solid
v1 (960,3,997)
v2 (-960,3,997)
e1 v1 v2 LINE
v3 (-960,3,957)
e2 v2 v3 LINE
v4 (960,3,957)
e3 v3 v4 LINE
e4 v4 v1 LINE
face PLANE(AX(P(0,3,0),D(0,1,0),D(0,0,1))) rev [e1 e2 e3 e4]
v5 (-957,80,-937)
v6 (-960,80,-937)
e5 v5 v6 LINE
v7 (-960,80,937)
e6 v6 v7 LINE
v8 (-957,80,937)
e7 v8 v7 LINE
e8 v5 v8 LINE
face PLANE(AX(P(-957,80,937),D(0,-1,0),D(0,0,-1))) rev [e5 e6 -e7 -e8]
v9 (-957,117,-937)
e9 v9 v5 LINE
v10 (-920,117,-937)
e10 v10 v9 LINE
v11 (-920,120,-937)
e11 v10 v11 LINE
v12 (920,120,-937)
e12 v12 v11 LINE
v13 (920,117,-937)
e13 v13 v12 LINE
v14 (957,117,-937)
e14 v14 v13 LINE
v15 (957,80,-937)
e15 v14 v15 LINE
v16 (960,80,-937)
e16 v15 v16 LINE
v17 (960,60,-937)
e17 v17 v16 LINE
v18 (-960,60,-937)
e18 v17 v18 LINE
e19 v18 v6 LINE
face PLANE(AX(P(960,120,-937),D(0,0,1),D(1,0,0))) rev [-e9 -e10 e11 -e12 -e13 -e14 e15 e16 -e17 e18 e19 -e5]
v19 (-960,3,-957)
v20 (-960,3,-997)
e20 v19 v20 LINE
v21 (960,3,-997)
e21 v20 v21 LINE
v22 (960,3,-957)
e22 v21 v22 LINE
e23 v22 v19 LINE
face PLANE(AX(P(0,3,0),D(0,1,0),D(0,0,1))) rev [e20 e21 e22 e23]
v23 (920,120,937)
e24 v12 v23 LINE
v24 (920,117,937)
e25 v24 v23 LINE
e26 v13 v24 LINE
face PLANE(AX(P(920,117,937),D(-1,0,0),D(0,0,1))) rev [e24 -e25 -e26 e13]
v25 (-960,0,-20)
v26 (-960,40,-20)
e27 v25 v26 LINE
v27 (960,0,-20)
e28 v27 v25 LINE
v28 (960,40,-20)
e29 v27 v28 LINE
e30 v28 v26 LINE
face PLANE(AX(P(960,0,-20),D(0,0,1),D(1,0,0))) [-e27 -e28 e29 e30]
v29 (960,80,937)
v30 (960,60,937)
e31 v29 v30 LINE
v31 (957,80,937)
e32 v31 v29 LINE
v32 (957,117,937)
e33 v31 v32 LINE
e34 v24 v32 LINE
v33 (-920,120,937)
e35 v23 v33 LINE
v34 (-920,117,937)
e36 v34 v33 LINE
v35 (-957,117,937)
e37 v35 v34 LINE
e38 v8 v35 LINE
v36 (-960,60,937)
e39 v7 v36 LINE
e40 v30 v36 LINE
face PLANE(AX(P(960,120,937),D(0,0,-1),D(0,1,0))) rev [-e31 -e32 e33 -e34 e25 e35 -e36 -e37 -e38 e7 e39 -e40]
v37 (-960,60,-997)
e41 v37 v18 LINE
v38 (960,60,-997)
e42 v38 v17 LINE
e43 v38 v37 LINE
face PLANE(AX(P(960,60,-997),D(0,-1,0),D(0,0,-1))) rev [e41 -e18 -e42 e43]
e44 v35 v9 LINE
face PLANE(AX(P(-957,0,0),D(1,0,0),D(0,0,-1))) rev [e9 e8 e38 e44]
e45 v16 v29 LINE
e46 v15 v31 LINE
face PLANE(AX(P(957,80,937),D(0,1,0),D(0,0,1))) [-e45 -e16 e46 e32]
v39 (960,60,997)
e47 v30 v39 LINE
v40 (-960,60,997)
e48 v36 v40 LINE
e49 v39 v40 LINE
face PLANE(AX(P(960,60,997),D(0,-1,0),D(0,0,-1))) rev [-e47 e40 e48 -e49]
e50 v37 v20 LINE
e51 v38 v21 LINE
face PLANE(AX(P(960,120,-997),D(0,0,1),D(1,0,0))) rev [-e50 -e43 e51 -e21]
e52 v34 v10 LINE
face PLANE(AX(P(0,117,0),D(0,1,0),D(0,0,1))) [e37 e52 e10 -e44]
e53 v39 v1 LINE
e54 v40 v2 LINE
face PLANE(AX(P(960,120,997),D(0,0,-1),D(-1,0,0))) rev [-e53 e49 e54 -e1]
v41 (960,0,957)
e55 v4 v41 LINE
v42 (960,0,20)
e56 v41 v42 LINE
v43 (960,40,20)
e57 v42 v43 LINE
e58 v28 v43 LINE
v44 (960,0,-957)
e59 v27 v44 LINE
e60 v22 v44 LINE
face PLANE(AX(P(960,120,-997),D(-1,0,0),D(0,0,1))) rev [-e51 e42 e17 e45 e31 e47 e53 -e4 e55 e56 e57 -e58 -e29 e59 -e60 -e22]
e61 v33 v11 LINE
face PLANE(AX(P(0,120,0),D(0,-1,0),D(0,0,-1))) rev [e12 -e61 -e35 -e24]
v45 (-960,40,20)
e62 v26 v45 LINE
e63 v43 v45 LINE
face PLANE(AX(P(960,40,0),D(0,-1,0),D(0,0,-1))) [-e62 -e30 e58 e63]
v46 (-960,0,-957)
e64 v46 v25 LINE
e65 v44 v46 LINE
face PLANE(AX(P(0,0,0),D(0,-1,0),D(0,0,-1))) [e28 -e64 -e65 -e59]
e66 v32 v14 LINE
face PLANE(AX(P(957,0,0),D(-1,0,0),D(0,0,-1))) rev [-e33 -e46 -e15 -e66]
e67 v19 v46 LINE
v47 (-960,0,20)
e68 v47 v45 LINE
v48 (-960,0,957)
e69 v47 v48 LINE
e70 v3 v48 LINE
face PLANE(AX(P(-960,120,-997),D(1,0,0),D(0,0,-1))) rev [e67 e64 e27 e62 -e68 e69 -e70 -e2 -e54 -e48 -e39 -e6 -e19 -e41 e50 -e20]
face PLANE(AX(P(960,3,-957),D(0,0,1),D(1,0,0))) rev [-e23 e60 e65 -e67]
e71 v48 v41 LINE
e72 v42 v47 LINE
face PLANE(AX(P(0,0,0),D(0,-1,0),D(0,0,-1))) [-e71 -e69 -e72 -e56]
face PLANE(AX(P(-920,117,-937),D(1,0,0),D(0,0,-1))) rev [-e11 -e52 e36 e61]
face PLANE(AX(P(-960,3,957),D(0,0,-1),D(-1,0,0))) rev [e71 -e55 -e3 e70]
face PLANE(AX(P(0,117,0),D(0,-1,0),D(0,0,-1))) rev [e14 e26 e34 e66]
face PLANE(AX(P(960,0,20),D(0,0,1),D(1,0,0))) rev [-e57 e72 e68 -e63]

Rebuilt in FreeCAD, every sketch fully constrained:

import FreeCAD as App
import Part
import Sketcher

doc = App.newDocument("Part")
body = doc.addObject("PartDesign::Body", "Body")

# Sketch on XZ plane
sketch1 = body.newObject("Sketcher::SketchObject", "Sketch")
sketch1.AttachmentSupport = (doc.getObject("XZ_Plane"), [""])
sketch1.MapMode = "FlatFace"
sketch1.addGeometry([
    Part.LineSegment(App.Vector(-960, -997, 0), App.Vector(-960, 997, 0)),
    Part.LineSegment(App.Vector(-960, 997, 0), App.Vector(960, 997, 0)),
    Part.LineSegment(App.Vector(960, 997, 0), App.Vector(960, -997, 0)),
    Part.LineSegment(App.Vector(960, -997, 0), App.Vector(-960, -997, 0)),
], False)
sketch1.addConstraint([
    Sketcher.Constraint("Coincident", 0, 2, 1, 1),
    Sketcher.Constraint("Coincident", 1, 2, 2, 1),
    Sketcher.Constraint("Coincident", 2, 2, 3, 1),
    Sketcher.Constraint("Coincident", 3, 2, 0, 1),
    Sketcher.Constraint("Vertical", 0),
    Sketcher.Constraint("Horizontal", 1),
    Sketcher.Constraint("Vertical", 2),
    Sketcher.Constraint("Horizontal", 3),
    Sketcher.Constraint("Symmetric", 0, 2, 2, 2, -1, 1),
    Sketcher.Constraint("DistanceX", 1, 1, 1, 2, 1920.0),
    Sketcher.Constraint("DistanceY", 0, 1, 0, 2, 1994.0),
])
pad1 = body.newObject("PartDesign::Pad", "Pad")
pad1.Profile = sketch1
pad1.Length = 120
pad1.Reversed = True

# Sketch on YZ plane
sketch2 = body.newObject("Sketcher::SketchObject", "Sketch001")
sketch2.AttachmentSupport = (doc.getObject("YZ_Plane"), [""])
sketch2.MapMode = "FlatFace"
sketch2.AttachmentOffset = App.Placement(App.Vector(0, 0, -960), App.Rotation())
sketch2.addGeometry([
    Part.LineSegment(App.Vector(120, -997, 0), App.Vector(60, -997, 0)),  # 0
    Part.LineSegment(App.Vector(60, -997, 0), App.Vector(60, -937, 0)),  # 1
    Part.LineSegment(App.Vector(60, -937, 0), App.Vector(120, -937, 0)),  # 2
    Part.LineSegment(App.Vector(120, -937, 0), App.Vector(120, -997, 0)),  # 3
    Part.LineSegment(App.Vector(120, 937, 0), App.Vector(60, 937, 0)),  # 4
    Part.LineSegment(App.Vector(60, 937, 0), App.Vector(60, 997, 0)),  # 5
    Part.LineSegment(App.Vector(60, 997, 0), App.Vector(120, 997, 0)),  # 6
    Part.LineSegment(App.Vector(120, 997, 0), App.Vector(120, 937, 0)),  # 7
], False)
sketch2.addConstraint([
    Sketcher.Constraint("Coincident", 0, 2, 1, 1),
    Sketcher.Constraint("Coincident", 1, 2, 2, 1),
    Sketcher.Constraint("Coincident", 2, 2, 3, 1),
    Sketcher.Constraint("Coincident", 3, 2, 0, 1),
    Sketcher.Constraint("Coincident", 4, 2, 5, 1),
    Sketcher.Constraint("Coincident", 5, 2, 6, 1),
    Sketcher.Constraint("Coincident", 6, 2, 7, 1),
    Sketcher.Constraint("Coincident", 7, 2, 4, 1),
    Sketcher.Constraint("Horizontal", 0),
    Sketcher.Constraint("Vertical", 1),
    Sketcher.Constraint("Horizontal", 2),
    Sketcher.Constraint("Vertical", 3),
    Sketcher.Constraint("Horizontal", 4),
    Sketcher.Constraint("Vertical", 5),
    Sketcher.Constraint("Horizontal", 6),
    Sketcher.Constraint("Vertical", 7),
    Sketcher.Constraint("Symmetric", 1, 2, 4, 2, -1),
    Sketcher.Constraint("Symmetric", 3, 2, 6, 2, -1),
    Sketcher.Constraint("Equal", 6, 1),
    Sketcher.Constraint("DistanceX", 0, 2, 0, 1, 60.0),
    Sketcher.Constraint("DistanceX", -1, 1, 0, 2, 60.0),
    Sketcher.Constraint("DistanceY", 0, 2, -1, 1, 997.0),
])
pocket1 = body.newObject("PartDesign::Pocket", "Pocket")
pocket1.Profile = sketch2
pocket1.Type = "ThroughAll"
pocket1.Reversed = True

# Sketch on YZ plane
sketch3 = body.newObject("Sketcher::SketchObject", "Sketch002")
sketch3.AttachmentSupport = (doc.getObject("YZ_Plane"), [""])
sketch3.MapMode = "FlatFace"
sketch3.AttachmentOffset = App.Placement(App.Vector(0, 0, -960), App.Rotation())
sketch3.addGeometry([
    Part.LineSegment(App.Vector(40, -20, 0), App.Vector(0, -20, 0)),
    Part.LineSegment(App.Vector(0, -20, 0), App.Vector(0, 20, 0)),
    Part.LineSegment(App.Vector(0, 20, 0), App.Vector(40, 20, 0)),
    Part.LineSegment(App.Vector(40, 20, 0), App.Vector(40, -20, 0)),
], False)
sketch3.addConstraint([
    Sketcher.Constraint("Coincident", 0, 2, 1, 1),
    Sketcher.Constraint("Coincident", 1, 2, 2, 1),
    Sketcher.Constraint("Coincident", 2, 2, 3, 1),
    Sketcher.Constraint("Coincident", 3, 2, 0, 1),
    Sketcher.Constraint("Horizontal", 0),
    Sketcher.Constraint("Vertical", 1),
    Sketcher.Constraint("Horizontal", 2),
    Sketcher.Constraint("Vertical", 3),
    Sketcher.Constraint("Symmetric", 0, 2, 1, 2, -1, 1),
    Sketcher.Constraint("Equal", 2, 1),
    Sketcher.Constraint("DistanceX", 0, 2, 0, 1, 40.0),
])
pocket2 = body.newObject("PartDesign::Pocket", "Pocket001")
pocket2.Profile = sketch3
pocket2.Type = "ThroughAll"
pocket2.Reversed = True

# Sketch on XZ plane
sketch4 = body.newObject("Sketcher::SketchObject", "Sketch003")
sketch4.AttachmentSupport = (doc.getObject("XZ_Plane"), [""])
sketch4.MapMode = "FlatFace"
sketch4.addGeometry([
    Part.LineSegment(App.Vector(960, -997, 0), App.Vector(960, -957, 0)),  # 0
    Part.LineSegment(App.Vector(960, -957, 0), App.Vector(-960, -957, 0)),  # 1
    Part.LineSegment(App.Vector(-960, -957, 0), App.Vector(-960, -997, 0)),  # 2
    Part.LineSegment(App.Vector(-960, -997, 0), App.Vector(960, -997, 0)),  # 3
    Part.LineSegment(App.Vector(960, 957, 0), App.Vector(960, 997, 0)),  # 4
    Part.LineSegment(App.Vector(960, 997, 0), App.Vector(-960, 997, 0)),  # 5
    Part.LineSegment(App.Vector(-960, 997, 0), App.Vector(-960, 957, 0)),  # 6
    Part.LineSegment(App.Vector(-960, 957, 0), App.Vector(960, 957, 0)),  # 7
], False)
sketch4.addConstraint([
    Sketcher.Constraint("Coincident", 0, 2, 1, 1),
    Sketcher.Constraint("Coincident", 1, 2, 2, 1),
    Sketcher.Constraint("Coincident", 2, 2, 3, 1),
    Sketcher.Constraint("Coincident", 3, 2, 0, 1),
    Sketcher.Constraint("Coincident", 4, 2, 5, 1),
    Sketcher.Constraint("Coincident", 5, 2, 6, 1),
    Sketcher.Constraint("Coincident", 6, 2, 7, 1),
    Sketcher.Constraint("Coincident", 7, 2, 4, 1),
    Sketcher.Constraint("Vertical", 0),
    Sketcher.Constraint("Horizontal", 1),
    Sketcher.Constraint("Vertical", 2),
    Sketcher.Constraint("Horizontal", 3),
    Sketcher.Constraint("Vertical", 4),
    Sketcher.Constraint("Horizontal", 5),
    Sketcher.Constraint("Vertical", 6),
    Sketcher.Constraint("Horizontal", 7),
    Sketcher.Constraint("Symmetric", 2, 2, 4, 2, -1, 1),
    Sketcher.Constraint("Symmetric", 0, 2, 6, 2, -1, 1),
    Sketcher.Constraint("Vertical", 3, 2, 4, 2),
    Sketcher.Constraint("DistanceX", 1, 2, 1, 1, 1920.0),
    Sketcher.Constraint("DistanceY", 0, 1, 0, 2, 40.0),
    Sketcher.Constraint("DistanceY", 0, 2, -1, 1, 957.0),
])
pocket3 = body.newObject("PartDesign::Pocket", "Pocket002")
pocket3.Profile = sketch4
pocket3.Length = 3

# Sketch on XZ plane
sketch5 = body.newObject("Sketcher::SketchObject", "Sketch004")
sketch5.AttachmentSupport = (doc.getObject("XZ_Plane"), [""])
sketch5.MapMode = "FlatFace"
sketch5.AttachmentOffset = App.Placement(App.Vector(0, 0, -120), App.Rotation())
sketch5.addGeometry([
    Part.LineSegment(App.Vector(-960, -937, 0), App.Vector(-960, 937, 0)),  # 0
    Part.LineSegment(App.Vector(-960, 937, 0), App.Vector(-920, 937, 0)),  # 1
    Part.LineSegment(App.Vector(-920, 937, 0), App.Vector(-920, -937, 0)),  # 2
    Part.LineSegment(App.Vector(-920, -937, 0), App.Vector(-960, -937, 0)),  # 3
    Part.LineSegment(App.Vector(920, -937, 0), App.Vector(920, 937, 0)),  # 4
    Part.LineSegment(App.Vector(920, 937, 0), App.Vector(960, 937, 0)),  # 5
    Part.LineSegment(App.Vector(960, 937, 0), App.Vector(960, -937, 0)),  # 6
    Part.LineSegment(App.Vector(960, -937, 0), App.Vector(920, -937, 0)),  # 7
], False)
sketch5.addConstraint([
    Sketcher.Constraint("Coincident", 0, 2, 1, 1),
    Sketcher.Constraint("Coincident", 1, 2, 2, 1),
    Sketcher.Constraint("Coincident", 2, 2, 3, 1),
    Sketcher.Constraint("Coincident", 3, 2, 0, 1),
    Sketcher.Constraint("Coincident", 4, 2, 5, 1),
    Sketcher.Constraint("Coincident", 5, 2, 6, 1),
    Sketcher.Constraint("Coincident", 6, 2, 7, 1),
    Sketcher.Constraint("Coincident", 7, 2, 4, 1),
    Sketcher.Constraint("Vertical", 0),
    Sketcher.Constraint("Horizontal", 1),
    Sketcher.Constraint("Vertical", 2),
    Sketcher.Constraint("Horizontal", 3),
    Sketcher.Constraint("Vertical", 4),
    Sketcher.Constraint("Horizontal", 5),
    Sketcher.Constraint("Vertical", 6),
    Sketcher.Constraint("Horizontal", 7),
    Sketcher.Constraint("Symmetric", 2, 2, 4, 2, -1, 1),
    Sketcher.Constraint("Symmetric", 0, 2, 6, 2, -1, 1),
    Sketcher.Constraint("Horizontal", 1, 2, 4, 2),
    Sketcher.Constraint("DistanceX", 1, 1, 1, 2, 40.0),
    Sketcher.Constraint("DistanceY", 0, 1, 0, 2, 1874.0),
    Sketcher.Constraint("DistanceX", 0, 2, -1, 1, 960.0),
])
pocket4 = body.newObject("PartDesign::Pocket", "Pocket003")
pocket4.Profile = sketch5
pocket4.Length = 3
pocket4.Reversed = True

# Sketch on YZ plane
sketch6 = body.newObject("Sketcher::SketchObject", "Sketch005")
sketch6.AttachmentSupport = (doc.getObject("YZ_Plane"), [""])
sketch6.MapMode = "FlatFace"
sketch6.AttachmentOffset = App.Placement(App.Vector(0, 0, -960), App.Rotation())
sketch6.addGeometry([
    Part.LineSegment(App.Vector(120, -937, 0), App.Vector(80, -937, 0)),
    Part.LineSegment(App.Vector(80, -937, 0), App.Vector(80, 937, 0)),
    Part.LineSegment(App.Vector(80, 937, 0), App.Vector(120, 937, 0)),
    Part.LineSegment(App.Vector(120, 937, 0), App.Vector(120, -937, 0)),
], False)
sketch6.addConstraint([
    Sketcher.Constraint("Coincident", 0, 2, 1, 1),
    Sketcher.Constraint("Coincident", 1, 2, 2, 1),
    Sketcher.Constraint("Coincident", 2, 2, 3, 1),
    Sketcher.Constraint("Coincident", 3, 2, 0, 1),
    Sketcher.Constraint("Horizontal", 0),
    Sketcher.Constraint("Vertical", 1),
    Sketcher.Constraint("Horizontal", 2),
    Sketcher.Constraint("Vertical", 3),
    Sketcher.Constraint("DistanceX", 0, 2, 0, 1, 40.0),
    Sketcher.Constraint("DistanceY", 1, 1, 1, 2, 1874.0),
    Sketcher.Constraint("DistanceX", -1, 1, 0, 2, 80.0),
    Sketcher.Constraint("DistanceY", 0, 2, -1, 1, 937.0),
])
pocket5 = body.newObject("PartDesign::Pocket", "Pocket004")
pocket5.Profile = sketch6
pocket5.Length = 3
pocket5.Reversed = True
doc.recompute()

mirrored = body.newObject("PartDesign::Mirrored", "Mirrored")
mirrored.Originals = [pocket5]
mirrored.MirrorPlane = (doc.getObject("YZ_Plane"), [""])
body.Tip = mirrored

doc.recompute()
